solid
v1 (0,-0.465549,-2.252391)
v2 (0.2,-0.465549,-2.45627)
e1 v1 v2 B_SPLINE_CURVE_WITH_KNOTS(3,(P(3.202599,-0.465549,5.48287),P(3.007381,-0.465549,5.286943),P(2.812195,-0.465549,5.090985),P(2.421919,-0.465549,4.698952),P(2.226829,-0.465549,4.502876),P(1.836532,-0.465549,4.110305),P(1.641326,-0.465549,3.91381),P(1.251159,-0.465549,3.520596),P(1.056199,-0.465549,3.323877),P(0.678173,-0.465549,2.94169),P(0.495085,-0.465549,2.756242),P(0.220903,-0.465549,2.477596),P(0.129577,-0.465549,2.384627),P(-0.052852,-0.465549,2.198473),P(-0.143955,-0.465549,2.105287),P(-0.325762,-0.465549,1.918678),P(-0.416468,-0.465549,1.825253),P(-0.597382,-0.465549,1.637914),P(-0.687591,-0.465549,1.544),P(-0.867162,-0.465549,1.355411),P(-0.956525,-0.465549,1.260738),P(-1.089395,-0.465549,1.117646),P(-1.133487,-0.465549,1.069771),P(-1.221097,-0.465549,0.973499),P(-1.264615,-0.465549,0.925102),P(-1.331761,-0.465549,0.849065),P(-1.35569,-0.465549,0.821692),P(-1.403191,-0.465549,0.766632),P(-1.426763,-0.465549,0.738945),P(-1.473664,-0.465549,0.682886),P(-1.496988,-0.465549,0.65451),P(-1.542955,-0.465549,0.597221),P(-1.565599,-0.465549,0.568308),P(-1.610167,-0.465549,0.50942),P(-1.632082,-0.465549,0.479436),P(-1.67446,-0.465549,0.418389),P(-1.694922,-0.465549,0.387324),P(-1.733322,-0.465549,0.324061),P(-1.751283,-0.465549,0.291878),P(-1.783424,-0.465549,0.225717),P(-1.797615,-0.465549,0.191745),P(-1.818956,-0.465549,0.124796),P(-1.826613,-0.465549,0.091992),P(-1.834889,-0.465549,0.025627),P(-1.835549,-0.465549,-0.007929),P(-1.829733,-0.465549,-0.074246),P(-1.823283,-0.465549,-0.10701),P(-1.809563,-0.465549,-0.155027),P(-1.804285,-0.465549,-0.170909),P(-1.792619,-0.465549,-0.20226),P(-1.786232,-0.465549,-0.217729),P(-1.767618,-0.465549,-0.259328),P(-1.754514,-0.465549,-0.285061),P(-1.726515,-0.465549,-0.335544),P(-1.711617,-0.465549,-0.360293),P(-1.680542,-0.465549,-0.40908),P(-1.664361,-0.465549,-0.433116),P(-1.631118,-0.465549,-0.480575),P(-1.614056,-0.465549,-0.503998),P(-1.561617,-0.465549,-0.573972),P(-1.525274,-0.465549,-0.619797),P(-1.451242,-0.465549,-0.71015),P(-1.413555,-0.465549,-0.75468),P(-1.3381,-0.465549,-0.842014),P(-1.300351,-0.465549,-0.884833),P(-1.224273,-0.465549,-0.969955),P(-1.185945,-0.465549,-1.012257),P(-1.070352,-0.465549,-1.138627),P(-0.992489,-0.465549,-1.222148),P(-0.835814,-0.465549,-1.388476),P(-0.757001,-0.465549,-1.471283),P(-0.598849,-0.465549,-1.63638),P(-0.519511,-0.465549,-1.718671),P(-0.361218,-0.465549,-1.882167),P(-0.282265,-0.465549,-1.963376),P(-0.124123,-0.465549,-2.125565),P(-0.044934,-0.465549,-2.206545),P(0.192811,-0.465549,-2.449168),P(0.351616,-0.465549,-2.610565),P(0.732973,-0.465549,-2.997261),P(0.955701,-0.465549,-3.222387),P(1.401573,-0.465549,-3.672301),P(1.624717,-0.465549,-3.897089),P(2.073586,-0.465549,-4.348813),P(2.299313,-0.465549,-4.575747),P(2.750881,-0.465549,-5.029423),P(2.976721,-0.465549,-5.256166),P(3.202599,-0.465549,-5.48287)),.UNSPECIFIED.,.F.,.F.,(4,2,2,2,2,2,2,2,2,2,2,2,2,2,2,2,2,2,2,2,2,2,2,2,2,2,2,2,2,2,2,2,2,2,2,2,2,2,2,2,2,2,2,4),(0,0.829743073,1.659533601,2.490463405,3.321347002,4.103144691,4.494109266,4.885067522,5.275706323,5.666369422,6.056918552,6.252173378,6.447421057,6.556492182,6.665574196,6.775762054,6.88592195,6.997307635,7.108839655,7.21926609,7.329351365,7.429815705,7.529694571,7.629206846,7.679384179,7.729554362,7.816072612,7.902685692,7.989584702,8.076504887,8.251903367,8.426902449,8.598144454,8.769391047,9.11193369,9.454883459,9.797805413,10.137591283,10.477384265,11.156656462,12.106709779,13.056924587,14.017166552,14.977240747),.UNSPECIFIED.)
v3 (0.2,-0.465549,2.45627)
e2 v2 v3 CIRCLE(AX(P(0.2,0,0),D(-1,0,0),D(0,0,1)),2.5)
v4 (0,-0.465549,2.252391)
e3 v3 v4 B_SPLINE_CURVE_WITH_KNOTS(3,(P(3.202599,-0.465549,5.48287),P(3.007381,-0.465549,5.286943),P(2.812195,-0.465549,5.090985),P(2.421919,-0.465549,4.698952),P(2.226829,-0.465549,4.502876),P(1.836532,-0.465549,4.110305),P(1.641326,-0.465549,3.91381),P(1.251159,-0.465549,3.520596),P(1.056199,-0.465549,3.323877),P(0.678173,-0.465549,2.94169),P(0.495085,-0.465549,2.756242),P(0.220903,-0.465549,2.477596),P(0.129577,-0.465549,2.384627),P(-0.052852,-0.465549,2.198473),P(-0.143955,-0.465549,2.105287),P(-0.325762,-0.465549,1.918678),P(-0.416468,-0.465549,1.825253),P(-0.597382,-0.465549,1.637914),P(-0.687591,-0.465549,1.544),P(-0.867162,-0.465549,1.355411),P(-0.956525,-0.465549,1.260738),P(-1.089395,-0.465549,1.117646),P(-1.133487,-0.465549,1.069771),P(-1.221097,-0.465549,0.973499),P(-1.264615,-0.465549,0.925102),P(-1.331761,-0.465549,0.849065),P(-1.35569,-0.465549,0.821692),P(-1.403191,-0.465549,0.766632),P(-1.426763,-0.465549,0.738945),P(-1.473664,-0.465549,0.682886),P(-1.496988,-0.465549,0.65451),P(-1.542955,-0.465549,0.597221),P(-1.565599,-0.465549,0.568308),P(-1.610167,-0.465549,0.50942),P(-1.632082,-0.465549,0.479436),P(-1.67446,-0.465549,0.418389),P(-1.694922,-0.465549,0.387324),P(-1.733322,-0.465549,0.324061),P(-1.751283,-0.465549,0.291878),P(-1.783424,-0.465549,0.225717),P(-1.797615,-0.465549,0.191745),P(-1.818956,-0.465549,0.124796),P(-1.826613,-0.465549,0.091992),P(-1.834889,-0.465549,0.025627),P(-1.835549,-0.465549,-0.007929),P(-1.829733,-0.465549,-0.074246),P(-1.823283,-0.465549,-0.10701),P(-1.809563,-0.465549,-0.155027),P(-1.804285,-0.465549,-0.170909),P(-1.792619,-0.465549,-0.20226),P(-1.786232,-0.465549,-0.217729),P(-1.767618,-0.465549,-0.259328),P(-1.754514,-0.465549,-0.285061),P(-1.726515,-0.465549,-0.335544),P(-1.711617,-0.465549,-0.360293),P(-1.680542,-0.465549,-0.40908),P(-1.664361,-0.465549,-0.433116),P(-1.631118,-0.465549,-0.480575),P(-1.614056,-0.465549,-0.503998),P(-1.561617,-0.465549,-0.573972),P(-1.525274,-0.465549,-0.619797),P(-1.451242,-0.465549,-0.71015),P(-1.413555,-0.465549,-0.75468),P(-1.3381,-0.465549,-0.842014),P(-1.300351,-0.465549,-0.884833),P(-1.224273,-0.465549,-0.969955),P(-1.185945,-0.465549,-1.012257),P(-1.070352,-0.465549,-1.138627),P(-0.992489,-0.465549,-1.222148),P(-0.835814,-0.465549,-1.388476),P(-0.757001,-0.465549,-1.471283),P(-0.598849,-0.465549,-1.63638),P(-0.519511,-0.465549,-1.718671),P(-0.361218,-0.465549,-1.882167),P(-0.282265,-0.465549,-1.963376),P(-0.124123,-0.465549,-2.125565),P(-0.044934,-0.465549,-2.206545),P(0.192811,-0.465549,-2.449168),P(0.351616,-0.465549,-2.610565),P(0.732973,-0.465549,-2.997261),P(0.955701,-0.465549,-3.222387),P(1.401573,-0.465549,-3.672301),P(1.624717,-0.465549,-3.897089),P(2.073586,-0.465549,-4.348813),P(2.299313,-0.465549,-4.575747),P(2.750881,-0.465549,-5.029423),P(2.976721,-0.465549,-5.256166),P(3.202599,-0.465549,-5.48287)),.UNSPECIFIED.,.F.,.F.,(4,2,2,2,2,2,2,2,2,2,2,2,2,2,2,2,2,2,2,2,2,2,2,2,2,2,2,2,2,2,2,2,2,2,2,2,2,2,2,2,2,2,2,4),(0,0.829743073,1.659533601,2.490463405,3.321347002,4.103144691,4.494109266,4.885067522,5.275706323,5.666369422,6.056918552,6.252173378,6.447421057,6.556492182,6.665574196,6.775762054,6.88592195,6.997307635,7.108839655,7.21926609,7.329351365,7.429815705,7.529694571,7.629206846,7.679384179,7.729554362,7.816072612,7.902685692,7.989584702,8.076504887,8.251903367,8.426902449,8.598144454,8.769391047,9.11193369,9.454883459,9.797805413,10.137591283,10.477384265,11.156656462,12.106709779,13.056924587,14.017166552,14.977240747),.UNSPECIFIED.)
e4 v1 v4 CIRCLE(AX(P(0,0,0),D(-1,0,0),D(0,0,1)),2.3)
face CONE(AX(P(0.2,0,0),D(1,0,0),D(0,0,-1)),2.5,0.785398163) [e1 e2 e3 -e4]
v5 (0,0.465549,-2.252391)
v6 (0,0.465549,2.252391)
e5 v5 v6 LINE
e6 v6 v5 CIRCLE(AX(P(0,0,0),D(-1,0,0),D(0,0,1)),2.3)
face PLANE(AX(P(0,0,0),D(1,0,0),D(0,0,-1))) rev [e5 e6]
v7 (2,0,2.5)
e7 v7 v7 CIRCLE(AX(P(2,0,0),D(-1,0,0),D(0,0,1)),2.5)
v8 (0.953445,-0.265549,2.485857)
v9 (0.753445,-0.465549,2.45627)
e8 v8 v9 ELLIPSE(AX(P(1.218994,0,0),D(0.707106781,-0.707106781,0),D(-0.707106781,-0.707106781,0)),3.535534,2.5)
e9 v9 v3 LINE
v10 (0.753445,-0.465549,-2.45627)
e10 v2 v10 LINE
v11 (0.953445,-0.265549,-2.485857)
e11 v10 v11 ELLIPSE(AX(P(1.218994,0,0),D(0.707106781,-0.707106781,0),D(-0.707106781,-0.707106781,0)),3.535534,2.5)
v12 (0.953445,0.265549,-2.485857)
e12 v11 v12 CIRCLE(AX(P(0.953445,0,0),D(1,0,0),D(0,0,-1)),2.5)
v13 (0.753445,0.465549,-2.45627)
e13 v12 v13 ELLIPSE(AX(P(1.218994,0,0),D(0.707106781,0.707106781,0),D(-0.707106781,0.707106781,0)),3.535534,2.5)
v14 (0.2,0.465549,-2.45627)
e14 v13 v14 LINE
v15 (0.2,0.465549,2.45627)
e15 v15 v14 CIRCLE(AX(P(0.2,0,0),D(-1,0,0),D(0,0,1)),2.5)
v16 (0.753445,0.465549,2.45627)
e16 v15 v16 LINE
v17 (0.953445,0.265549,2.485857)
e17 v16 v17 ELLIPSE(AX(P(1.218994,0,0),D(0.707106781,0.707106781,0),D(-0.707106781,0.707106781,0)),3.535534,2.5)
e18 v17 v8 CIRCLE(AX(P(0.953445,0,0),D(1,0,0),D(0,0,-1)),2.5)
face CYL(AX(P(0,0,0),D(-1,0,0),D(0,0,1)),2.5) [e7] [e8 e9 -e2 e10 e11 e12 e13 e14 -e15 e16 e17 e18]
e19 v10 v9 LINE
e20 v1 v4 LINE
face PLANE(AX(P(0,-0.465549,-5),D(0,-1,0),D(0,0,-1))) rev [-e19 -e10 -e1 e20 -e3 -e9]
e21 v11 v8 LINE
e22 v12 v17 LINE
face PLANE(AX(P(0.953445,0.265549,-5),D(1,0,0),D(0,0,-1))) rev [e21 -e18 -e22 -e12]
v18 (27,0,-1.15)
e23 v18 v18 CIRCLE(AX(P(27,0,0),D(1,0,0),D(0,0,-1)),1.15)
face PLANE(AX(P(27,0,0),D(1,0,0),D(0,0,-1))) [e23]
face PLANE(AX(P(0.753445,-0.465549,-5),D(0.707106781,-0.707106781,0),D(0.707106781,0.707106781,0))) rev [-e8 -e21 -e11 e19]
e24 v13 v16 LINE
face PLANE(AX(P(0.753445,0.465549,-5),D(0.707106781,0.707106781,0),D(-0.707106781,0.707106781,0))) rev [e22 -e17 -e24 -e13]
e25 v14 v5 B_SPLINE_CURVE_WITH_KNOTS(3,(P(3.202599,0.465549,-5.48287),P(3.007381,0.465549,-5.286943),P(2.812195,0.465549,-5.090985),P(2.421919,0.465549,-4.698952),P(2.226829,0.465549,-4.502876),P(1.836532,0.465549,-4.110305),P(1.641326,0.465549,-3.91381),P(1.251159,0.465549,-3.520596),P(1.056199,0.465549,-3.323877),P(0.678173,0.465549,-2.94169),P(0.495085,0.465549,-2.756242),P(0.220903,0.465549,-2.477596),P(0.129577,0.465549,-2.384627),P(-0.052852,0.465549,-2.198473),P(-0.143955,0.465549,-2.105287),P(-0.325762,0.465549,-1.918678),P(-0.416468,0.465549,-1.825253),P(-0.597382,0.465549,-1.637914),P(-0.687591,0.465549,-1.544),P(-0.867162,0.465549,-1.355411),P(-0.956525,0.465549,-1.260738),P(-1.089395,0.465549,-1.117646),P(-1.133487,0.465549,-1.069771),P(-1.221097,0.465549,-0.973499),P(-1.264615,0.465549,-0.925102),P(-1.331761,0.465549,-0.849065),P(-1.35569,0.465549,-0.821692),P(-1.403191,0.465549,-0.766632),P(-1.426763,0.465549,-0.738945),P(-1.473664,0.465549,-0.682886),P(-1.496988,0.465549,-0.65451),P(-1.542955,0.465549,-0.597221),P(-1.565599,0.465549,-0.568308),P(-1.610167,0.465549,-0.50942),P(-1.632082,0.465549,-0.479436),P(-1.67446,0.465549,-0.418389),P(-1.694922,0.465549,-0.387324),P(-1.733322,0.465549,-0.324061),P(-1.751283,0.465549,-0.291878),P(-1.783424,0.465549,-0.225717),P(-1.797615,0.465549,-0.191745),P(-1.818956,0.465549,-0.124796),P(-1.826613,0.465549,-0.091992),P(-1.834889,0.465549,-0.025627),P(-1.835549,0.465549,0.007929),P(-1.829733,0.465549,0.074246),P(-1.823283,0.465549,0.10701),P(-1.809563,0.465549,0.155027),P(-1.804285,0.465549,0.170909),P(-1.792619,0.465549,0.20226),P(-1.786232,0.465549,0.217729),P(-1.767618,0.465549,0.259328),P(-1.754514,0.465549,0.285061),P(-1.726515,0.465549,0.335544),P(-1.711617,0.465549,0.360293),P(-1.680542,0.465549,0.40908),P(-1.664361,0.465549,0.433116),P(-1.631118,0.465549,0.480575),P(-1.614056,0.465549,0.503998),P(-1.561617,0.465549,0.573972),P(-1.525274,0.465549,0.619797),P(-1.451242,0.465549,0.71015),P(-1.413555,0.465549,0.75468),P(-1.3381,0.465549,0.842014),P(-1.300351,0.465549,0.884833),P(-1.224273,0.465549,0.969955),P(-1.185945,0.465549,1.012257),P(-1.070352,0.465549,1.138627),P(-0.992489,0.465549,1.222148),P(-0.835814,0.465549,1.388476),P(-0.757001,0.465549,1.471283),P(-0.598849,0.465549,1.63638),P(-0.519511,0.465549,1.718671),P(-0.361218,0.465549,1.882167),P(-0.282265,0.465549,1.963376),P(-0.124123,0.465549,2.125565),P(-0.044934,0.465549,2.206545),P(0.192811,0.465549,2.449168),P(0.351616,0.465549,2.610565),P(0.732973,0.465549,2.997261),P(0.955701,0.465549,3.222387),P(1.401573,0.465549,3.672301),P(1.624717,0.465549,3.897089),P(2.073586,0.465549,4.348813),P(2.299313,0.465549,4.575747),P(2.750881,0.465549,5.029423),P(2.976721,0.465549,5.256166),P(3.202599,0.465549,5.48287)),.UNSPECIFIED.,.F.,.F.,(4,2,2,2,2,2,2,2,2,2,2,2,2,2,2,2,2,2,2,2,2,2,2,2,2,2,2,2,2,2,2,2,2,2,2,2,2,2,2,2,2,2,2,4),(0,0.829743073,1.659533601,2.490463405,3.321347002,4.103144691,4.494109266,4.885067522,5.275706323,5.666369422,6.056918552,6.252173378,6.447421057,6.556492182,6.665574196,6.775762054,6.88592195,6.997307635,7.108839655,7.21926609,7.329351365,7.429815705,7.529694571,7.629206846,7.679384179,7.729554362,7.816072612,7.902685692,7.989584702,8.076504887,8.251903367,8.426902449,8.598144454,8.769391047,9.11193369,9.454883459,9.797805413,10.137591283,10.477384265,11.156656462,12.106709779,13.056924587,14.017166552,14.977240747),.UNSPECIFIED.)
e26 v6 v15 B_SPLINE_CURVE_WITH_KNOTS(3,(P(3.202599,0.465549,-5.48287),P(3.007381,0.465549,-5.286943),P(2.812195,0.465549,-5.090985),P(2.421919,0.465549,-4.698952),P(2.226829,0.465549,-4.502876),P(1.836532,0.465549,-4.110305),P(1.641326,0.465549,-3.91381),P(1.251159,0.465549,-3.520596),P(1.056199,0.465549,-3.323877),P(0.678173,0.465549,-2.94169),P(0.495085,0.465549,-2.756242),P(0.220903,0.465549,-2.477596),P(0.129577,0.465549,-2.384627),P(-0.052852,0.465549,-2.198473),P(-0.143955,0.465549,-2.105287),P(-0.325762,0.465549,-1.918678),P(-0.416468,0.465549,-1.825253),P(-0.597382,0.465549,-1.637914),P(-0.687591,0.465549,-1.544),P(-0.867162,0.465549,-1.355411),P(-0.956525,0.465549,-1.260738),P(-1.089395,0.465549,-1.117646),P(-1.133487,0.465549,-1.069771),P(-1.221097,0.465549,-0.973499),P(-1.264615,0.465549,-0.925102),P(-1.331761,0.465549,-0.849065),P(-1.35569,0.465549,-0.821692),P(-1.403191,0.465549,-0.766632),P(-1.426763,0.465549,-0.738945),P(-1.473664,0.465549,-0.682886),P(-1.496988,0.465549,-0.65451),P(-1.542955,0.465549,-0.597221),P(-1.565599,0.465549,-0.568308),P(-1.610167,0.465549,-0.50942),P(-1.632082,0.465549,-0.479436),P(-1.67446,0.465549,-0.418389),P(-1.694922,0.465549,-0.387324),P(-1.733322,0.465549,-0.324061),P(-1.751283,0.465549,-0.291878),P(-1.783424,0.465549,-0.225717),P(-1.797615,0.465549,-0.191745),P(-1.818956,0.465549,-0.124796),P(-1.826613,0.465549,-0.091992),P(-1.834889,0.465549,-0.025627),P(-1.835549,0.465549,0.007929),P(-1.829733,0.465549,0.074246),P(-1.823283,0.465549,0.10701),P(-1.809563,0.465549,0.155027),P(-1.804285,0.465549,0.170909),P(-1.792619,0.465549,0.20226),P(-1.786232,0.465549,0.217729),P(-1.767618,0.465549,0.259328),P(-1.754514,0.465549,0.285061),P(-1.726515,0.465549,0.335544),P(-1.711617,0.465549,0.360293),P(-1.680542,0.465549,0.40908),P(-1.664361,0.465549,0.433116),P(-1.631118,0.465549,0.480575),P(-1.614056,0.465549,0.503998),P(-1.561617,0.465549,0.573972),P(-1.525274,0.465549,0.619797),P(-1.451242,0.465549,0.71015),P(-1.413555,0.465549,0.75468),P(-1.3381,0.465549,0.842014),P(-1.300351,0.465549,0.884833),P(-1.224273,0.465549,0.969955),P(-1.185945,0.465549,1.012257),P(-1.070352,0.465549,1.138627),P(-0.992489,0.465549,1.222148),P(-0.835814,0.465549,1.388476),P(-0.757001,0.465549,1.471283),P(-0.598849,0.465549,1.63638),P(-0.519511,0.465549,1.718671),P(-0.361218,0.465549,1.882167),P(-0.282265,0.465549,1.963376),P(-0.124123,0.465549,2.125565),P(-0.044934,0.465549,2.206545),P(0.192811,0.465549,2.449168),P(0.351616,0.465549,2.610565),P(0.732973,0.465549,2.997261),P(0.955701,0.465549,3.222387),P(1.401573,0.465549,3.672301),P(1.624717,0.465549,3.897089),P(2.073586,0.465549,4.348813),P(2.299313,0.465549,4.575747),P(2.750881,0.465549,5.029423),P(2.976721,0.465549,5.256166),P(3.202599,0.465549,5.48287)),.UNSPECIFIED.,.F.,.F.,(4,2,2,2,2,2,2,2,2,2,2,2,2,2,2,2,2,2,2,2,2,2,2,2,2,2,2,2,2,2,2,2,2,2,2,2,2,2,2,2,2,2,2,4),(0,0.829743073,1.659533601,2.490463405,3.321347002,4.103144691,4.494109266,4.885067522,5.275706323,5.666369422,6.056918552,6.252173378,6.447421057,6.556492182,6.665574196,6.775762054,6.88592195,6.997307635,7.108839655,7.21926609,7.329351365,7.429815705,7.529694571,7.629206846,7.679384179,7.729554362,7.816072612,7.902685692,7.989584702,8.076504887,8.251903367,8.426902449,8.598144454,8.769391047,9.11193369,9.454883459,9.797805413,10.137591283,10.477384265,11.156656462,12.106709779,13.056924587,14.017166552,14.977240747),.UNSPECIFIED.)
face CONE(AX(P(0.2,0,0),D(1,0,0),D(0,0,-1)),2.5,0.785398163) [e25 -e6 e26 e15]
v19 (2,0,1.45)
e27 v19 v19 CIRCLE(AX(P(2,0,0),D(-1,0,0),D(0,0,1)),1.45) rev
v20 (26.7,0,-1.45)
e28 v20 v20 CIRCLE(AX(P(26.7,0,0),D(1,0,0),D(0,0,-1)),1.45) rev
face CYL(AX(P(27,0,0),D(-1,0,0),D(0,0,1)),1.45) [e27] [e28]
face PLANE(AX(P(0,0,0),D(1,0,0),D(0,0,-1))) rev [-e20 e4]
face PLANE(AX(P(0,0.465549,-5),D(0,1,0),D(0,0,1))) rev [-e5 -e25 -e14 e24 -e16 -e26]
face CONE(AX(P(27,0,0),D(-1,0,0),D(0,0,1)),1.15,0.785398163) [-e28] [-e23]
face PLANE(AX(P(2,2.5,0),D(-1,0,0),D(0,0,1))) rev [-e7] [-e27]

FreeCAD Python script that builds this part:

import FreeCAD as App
import Part
import Sketcher

V = App.Vector
Q = App.Units.Quantity


def edges_at(feature, points):
    """Names of the edges that pass closest to the given points."""
    edges = feature.Shape.Edges
    near = lambda p: min(range(len(edges)), key=lambda i: edges[i].distToShape(Part.Vertex(*p))[0])
    return sorted({f"Edge{near(p) + 1}" for p in points})

doc = App.newDocument("Part")
params = doc.addObject("Spreadsheet::Sheet", "Params")
for row, (alias, value) in enumerate([
    ("sketch1_width", "2 mm"),
    ("sketch1_width2", "1.8 mm"),
    ("sketch1_height", "2.3 mm"),
    ("revolution_angle", "360 deg"),
    ("pocket1_length", "10 mm"),
    ("sketch3_diameter", "2.9 mm"),
    ("pad1_length", "25 mm"),
    ("chamfer_size", "0.3 mm"),
], start=1):
    params.set(f"A{row}", alias)
    params.set(f"B{row}", "=" + value)
    params.setAlias(f"B{row}", alias)

body = doc.addObject("PartDesign::Body", "Body")

# Sketch on XY plane
sketch1 = body.newObject("Sketcher::SketchObject", "Sketch")
sketch1.AttachmentSupport = (doc.getObject("XY_Plane"), [""])
sketch1.MapMode = "FlatFace"
sketch1.addGeometry([
    Part.LineSegment(V(0, 2.3, 0), V(0, 0, 0)),  # 0
    Part.LineSegment(V(0, 0, 0), V(2, 0, 0)),  # 1
    Part.LineSegment(V(2, 0, 0), V(2, 2.5, 0)),  # 2
    Part.LineSegment(V(2, 2.5, 0), V(0.2, 2.5, 0)),  # 3
    Part.LineSegment(V(0.2, 2.5, 0), V(0, 2.3, 0)),  # 4
], False)
sketch1.addConstraint([
    Sketcher.Constraint("Coincident", 0, 2, 1, 1),
    Sketcher.Constraint("Coincident", 1, 2, 2, 1),
    Sketcher.Constraint("Coincident", 2, 2, 3, 1),
    Sketcher.Constraint("Coincident", 3, 2, 4, 1),
    Sketcher.Constraint("Coincident", 4, 2, 0, 1),
    Sketcher.Constraint("Vertical", 0),
    Sketcher.Constraint("Horizontal", 1),
    Sketcher.Constraint("Vertical", 2),
    Sketcher.Constraint("Horizontal", 3),
    Sketcher.Constraint("Coincident", 0, 2, -1, 1),
    Sketcher.Constraint("DistanceX", 1, 1, 1, 2, 2.0),
    Sketcher.Constraint("Angle", 4, Q("-135 deg")),
    Sketcher.Constraint("DistanceX", 3, 2, 3, 1, 1.8),
    Sketcher.Constraint("DistanceY", 0, 2, 0, 1, 2.3),
])
sketch1.setExpression("Constraints[10]", "Params.sketch1_width")
sketch1.setExpression("Constraints[12]", "Params.sketch1_width2")
sketch1.setExpression("Constraints[13]", "Params.sketch1_height")
revolution = body.newObject("PartDesign::Revolution", "Revolution")
revolution.Profile = sketch1
revolution.ReferenceAxis = (sketch1, ["H_Axis"])
revolution.setExpression("Angle", "Params.revolution_angle")

# Sketch on XY plane
sketch2 = body.newObject("Sketcher::SketchObject", "Sketch001")
sketch2.AttachmentSupport = (doc.getObject("XY_Plane"), [""])
sketch2.MapMode = "FlatFace"
sketch2.addGeometry([
    Part.LineSegment(V(0.75, 0.47, 0), V(0, 0.47, 0)),  # 0
    Part.LineSegment(V(0, 0.47, 0), V(0, -0.47, 0)),  # 1
    Part.LineSegment(V(0, -0.47, 0), V(0.75, -0.47, 0)),  # 2
    Part.LineSegment(V(0.75, -0.47, 0), V(0.95, -0.27, 0)),  # 3
    Part.LineSegment(V(0.95, -0.27, 0), V(0.95, 0.27, 0)),  # 4
    Part.LineSegment(V(0.95, 0.27, 0), V(0.75, 0.47, 0)),  # 5
], False)
sketch2.addConstraint([
    Sketcher.Constraint("Coincident", 0, 2, 1, 1),
    Sketcher.Constraint("Coincident", 1, 2, 2, 1),
    Sketcher.Constraint("Coincident", 2, 2, 3, 1),
    Sketcher.Constraint("Coincident", 3, 2, 4, 1),
    Sketcher.Constraint("Coincident", 4, 2, 5, 1),
    Sketcher.Constraint("Coincident", 5, 2, 0, 1),
    Sketcher.Constraint("Horizontal", 0),
    Sketcher.Constraint("Vertical", 1),
    Sketcher.Constraint("Horizontal", 2),
    Sketcher.Constraint("Vertical", 4),
    Sketcher.Constraint("Symmetric", 0, 2, 1, 2, -1, 1),
    Sketcher.Constraint("Perpendicular", 3, 5),
    Sketcher.Constraint("Vertical", 2, 2, 5, 2),
    Sketcher.Constraint("Equal", 3, 5),
    Sketcher.Constraint("DistanceX", 2, 2, 3, 2, 0.2),
    Sketcher.Constraint("DistanceY", 1, 2, 1, 1, 0.931099),
    Sketcher.Constraint("DistanceX", 0, 2, 0, 1, 0.753445),
])
pocket1 = body.newObject("PartDesign::Pocket", "Pocket")
pocket1.Profile = sketch2
pocket1.setExpression("Length", "Params.pocket1_length")
pocket1.Midplane = True

# Sketch on YZ plane
sketch3 = body.newObject("Sketcher::SketchObject", "Sketch002")
sketch3.AttachmentSupport = (doc.getObject("YZ_Plane"), [""])
sketch3.MapMode = "FlatFace"
sketch3.AttachmentOffset = App.Placement(V(0, 0, 2), App.Rotation())
sketch3.addGeometry(Part.Circle(V(0, 0, 0), V(0, 0, 1), 1.4), False)
sketch3.addConstraint([
    Sketcher.Constraint("Coincident", 0, 3, -1, 1),
    Sketcher.Constraint("Diameter", 0, 2.9),
])
sketch3.setExpression("Constraints[1]", "Params.sketch3_diameter")
pad1 = body.newObject("PartDesign::Pad", "Pad")
pad1.Profile = sketch3
pad1.setExpression("Length", "Params.pad1_length")
doc.recompute()

chamfer = body.newObject("PartDesign::Chamfer", "Chamfer")
chamfer.Base = (pad1, edges_at(pad1, [(27, 0, -1.45)]))
chamfer.setExpression("Size", "Params.chamfer_size")

doc.recompute()
